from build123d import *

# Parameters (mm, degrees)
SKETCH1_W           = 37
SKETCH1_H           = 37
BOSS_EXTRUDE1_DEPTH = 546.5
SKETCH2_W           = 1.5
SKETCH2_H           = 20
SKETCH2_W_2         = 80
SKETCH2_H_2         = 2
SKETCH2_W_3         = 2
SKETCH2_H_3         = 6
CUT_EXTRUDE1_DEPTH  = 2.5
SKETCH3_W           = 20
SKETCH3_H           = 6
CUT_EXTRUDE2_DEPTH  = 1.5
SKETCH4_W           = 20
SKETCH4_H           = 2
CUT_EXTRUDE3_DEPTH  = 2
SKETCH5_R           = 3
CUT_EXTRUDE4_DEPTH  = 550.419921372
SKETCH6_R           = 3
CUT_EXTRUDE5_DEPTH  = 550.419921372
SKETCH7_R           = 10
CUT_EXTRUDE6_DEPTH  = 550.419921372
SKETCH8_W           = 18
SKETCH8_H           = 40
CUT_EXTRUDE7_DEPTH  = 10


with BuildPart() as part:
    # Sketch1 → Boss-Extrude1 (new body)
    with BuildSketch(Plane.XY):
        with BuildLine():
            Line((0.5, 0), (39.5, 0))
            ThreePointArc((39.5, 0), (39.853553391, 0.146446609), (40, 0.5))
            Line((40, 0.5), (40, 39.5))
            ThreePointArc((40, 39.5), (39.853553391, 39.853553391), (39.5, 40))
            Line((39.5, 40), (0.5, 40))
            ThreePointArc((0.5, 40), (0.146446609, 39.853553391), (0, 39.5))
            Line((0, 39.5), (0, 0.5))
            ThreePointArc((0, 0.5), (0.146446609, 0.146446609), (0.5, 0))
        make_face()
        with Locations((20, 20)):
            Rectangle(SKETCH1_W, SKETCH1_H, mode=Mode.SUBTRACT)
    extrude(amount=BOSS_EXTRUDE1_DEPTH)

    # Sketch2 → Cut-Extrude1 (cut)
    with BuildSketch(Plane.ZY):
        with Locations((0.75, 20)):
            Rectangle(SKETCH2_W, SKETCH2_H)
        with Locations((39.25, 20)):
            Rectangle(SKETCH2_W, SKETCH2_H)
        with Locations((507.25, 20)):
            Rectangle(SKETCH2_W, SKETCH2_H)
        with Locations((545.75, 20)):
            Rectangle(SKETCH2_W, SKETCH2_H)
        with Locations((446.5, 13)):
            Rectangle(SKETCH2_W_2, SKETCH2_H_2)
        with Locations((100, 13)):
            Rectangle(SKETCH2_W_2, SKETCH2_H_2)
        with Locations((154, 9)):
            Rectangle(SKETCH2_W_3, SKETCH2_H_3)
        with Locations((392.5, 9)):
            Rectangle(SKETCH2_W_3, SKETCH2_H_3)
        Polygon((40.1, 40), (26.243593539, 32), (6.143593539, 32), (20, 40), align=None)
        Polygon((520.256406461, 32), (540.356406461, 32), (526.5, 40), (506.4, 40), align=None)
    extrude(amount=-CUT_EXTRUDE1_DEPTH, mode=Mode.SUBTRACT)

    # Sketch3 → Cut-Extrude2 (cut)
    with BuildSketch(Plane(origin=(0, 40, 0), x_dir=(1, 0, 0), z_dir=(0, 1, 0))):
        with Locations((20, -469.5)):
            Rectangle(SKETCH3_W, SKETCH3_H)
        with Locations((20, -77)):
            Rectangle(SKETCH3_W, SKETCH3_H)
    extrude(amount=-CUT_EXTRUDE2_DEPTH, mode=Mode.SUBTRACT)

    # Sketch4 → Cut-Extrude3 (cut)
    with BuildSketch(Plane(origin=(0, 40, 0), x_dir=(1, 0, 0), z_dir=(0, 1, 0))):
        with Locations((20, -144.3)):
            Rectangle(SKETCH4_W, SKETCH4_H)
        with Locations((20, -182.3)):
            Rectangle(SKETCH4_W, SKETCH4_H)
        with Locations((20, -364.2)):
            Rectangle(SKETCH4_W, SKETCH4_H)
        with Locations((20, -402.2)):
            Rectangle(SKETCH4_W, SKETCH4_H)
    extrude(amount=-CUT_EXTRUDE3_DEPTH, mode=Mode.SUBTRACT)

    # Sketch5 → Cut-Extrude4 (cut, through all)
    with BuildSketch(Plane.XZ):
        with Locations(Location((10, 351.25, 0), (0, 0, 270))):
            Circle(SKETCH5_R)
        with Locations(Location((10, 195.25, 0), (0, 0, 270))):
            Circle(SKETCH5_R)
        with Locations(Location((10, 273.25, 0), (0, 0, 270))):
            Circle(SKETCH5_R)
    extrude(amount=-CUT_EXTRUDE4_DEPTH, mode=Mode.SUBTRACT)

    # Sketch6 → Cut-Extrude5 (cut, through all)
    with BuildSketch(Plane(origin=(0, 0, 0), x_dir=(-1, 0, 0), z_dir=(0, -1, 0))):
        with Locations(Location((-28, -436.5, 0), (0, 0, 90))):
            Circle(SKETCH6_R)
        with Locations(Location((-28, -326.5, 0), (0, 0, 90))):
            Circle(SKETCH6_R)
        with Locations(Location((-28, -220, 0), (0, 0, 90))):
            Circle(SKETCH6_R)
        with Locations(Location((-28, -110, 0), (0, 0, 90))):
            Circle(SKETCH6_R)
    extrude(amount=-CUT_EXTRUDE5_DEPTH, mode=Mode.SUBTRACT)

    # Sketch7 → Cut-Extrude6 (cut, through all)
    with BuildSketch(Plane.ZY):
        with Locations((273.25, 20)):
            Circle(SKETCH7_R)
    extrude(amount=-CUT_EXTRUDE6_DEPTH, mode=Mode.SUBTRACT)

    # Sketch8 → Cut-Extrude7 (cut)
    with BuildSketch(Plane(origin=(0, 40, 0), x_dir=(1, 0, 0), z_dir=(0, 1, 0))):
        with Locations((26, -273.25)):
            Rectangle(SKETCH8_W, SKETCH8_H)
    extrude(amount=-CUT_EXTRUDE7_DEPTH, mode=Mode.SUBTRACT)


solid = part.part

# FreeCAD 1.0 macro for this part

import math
import FreeCAD as App
import Part
import Sketcher

V = App.Vector
Q = App.Units.Quantity

doc = App.newDocument("Part")
body = doc.addObject("PartDesign::Body", "Body")

sketch1 = body.newObject("Sketcher::SketchObject", "Sketch")
sketch1.AttachmentSupport = (doc.getObject("XY_Plane"), [""])
sketch1.MapMode = "FlatFace"
sketch1.addGeometry([
    Part.LineSegment(V(0.5, 0, 0), V(39.5, 0, 0)),
    Part.ArcOfCircle(Part.Circle(V(39.5, 0.5, 0), V(0, 0, 1), 0.5), math.radians(-90), math.radians(0)),
    Part.LineSegment(V(40, 0.5, 0), V(40, 39.5, 0)),
    Part.ArcOfCircle(Part.Circle(V(39.5, 39.5, 0), V(0, 0, 1), 0.5), math.radians(0), math.radians(90)),
    Part.LineSegment(V(39.5, 40, 0), V(0.5, 40, 0)),
    Part.ArcOfCircle(Part.Circle(V(0.5, 39.5, 0), V(0, 0, 1), 0.5), math.radians(90), math.radians(180)),
    Part.LineSegment(V(0, 39.5, 0), V(0, 0.5, 0)),
    Part.ArcOfCircle(Part.Circle(V(0.5, 0.5, 0), V(0, 0, 1), 0.5), math.radians(180), math.radians(270)),
    Part.LineSegment(V(38.5, 1.5, 0), V(1.5, 1.5, 0)),
    Part.LineSegment(V(1.5, 1.5, 0), V(1.5, 38.5, 0)),
    Part.LineSegment(V(1.5, 38.5, 0), V(38.5, 38.5, 0)),
    Part.LineSegment(V(38.5, 38.5, 0), V(38.5, 1.5, 0)),
], False)
sketch1.addConstraint([
    Sketcher.Constraint("Tangent", 0, 2, 1, 1),
    Sketcher.Constraint("Tangent", 1, 2, 2, 1),
    Sketcher.Constraint("Tangent", 2, 2, 3, 1),
    Sketcher.Constraint("Tangent", 3, 2, 4, 1),
    Sketcher.Constraint("Tangent", 4, 2, 5, 1),
    Sketcher.Constraint("Tangent", 5, 2, 6, 1),
    Sketcher.Constraint("Tangent", 6, 2, 7, 1),
    Sketcher.Constraint("Tangent", 7, 2, 0, 1),
    Sketcher.Constraint("Coincident", 8, 2, 9, 1),
    Sketcher.Constraint("Coincident", 9, 2, 10, 1),
    Sketcher.Constraint("Coincident", 10, 2, 11, 1),
    Sketcher.Constraint("Coincident", 11, 2, 8, 1),
    Sketcher.Constraint("Horizontal", 0),
    Sketcher.Constraint("Vertical", 2),
    Sketcher.Constraint("Horizontal", 4),
    Sketcher.Constraint("Vertical", 6),
    Sketcher.Constraint("Horizontal", 8),
    Sketcher.Constraint("Vertical", 9),
    Sketcher.Constraint("Horizontal", 10),
    Sketcher.Constraint("Vertical", 11),
    Sketcher.Constraint("Equal", 1, 3),
    Sketcher.Constraint("Equal", 3, 5),
    Sketcher.Constraint("Equal", 5, 7),
    Sketcher.Constraint("PointOnObject", 0, 2, -1),
    Sketcher.Constraint("PointOnObject", 5, 2, -2),
    Sketcher.Constraint("Equal", 4, 2),
    Sketcher.Constraint("Equal", 10, 9),
    Sketcher.Constraint("Radius", 1, Q("0.5 mm")),
    Sketcher.Constraint("DistanceX", 0, 1, 0, 2, Q("39 mm")),
    Sketcher.Constraint("DistanceX", 8, 2, 8, 1, Q("37 mm")),
    Sketcher.Constraint("DistanceX", 7, 3, 8, 2, Q("1 mm")),
    Sketcher.Constraint("DistanceY", 7, 3, 8, 2, Q("1 mm")),
])
pad1 = body.newObject("PartDesign::Pad", "Pad")
pad1.Profile = sketch1
pad1.Length = 546.5

sketch2 = body.newObject("Sketcher::SketchObject", "Sketch001")
sketch2.AttachmentSupport = (doc.getObject("YZ_Plane"), [""])
sketch2.MapMode = "FlatFace"
sketch2.addGeometry([
    Part.LineSegment(V(30, 0, 0), V(10, 0, 0)),
    Part.LineSegment(V(10, 0, 0), V(10, 1.5, 0)),
    Part.LineSegment(V(10, 1.5, 0), V(30, 1.5, 0)),
    Part.LineSegment(V(30, 1.5, 0), V(30, 0, 0)),
    Part.LineSegment(V(30, 38.5, 0), V(10, 38.5, 0)),
    Part.LineSegment(V(10, 38.5, 0), V(10, 40, 0)),
    Part.LineSegment(V(10, 40, 0), V(30, 40, 0)),
    Part.LineSegment(V(30, 40, 0), V(30, 38.5, 0)),
    Part.LineSegment(V(30, 506.5, 0), V(10, 506.5, 0)),
    Part.LineSegment(V(10, 506.5, 0), V(10, 508, 0)),
    Part.LineSegment(V(10, 508, 0), V(30, 508, 0)),
    Part.LineSegment(V(30, 508, 0), V(30, 506.5, 0)),
    Part.LineSegment(V(30, 545, 0), V(10, 545, 0)),
    Part.LineSegment(V(10, 545, 0), V(10, 546.5, 0)),
    Part.LineSegment(V(10, 546.5, 0), V(30, 546.5, 0)),
    Part.LineSegment(V(30, 546.5, 0), V(30, 545, 0)),
    Part.LineSegment(V(14, 406.5, 0), V(12, 406.5, 0)),
    Part.LineSegment(V(12, 406.5, 0), V(12, 486.5, 0)),
    Part.LineSegment(V(12, 486.5, 0), V(14, 486.5, 0)),
    Part.LineSegment(V(14, 486.5, 0), V(14, 406.5, 0)),
    Part.LineSegment(V(14, 60, 0), V(12, 60, 0)),
    Part.LineSegment(V(12, 60, 0), V(12, 140, 0)),
    Part.LineSegment(V(12, 140, 0), V(14, 140, 0)),
    Part.LineSegment(V(14, 140, 0), V(14, 60, 0)),
    Part.LineSegment(V(12, 153, 0), V(6, 153, 0)),
    Part.LineSegment(V(6, 153, 0), V(6, 155, 0)),
    Part.LineSegment(V(6, 155, 0), V(12, 155, 0)),
    Part.LineSegment(V(12, 155, 0), V(12, 153, 0)),
    Part.LineSegment(V(12, 391.5, 0), V(6, 391.5, 0)),
    Part.LineSegment(V(6, 391.5, 0), V(6, 393.5, 0)),
    Part.LineSegment(V(6, 393.5, 0), V(12, 393.5, 0)),
    Part.LineSegment(V(12, 393.5, 0), V(12, 391.5, 0)),
    Part.LineSegment(V(32, 26.2, 0), V(40, 40.1, 0)),
    Part.LineSegment(V(40, 40.1, 0), V(40, 20, 0)),
    Part.LineSegment(V(40, 20, 0), V(32, 6.1, 0)),
    Part.LineSegment(V(32, 6.1, 0), V(32, 26.2, 0)),
    Part.LineSegment(V(32, 520.3, 0), V(32, 540.4, 0)),
    Part.LineSegment(V(32, 540.4, 0), V(40, 526.5, 0)),
    Part.LineSegment(V(40, 526.5, 0), V(40, 506.4, 0)),
    Part.LineSegment(V(40, 506.4, 0), V(32, 520.3, 0)),
], False)
sketch2.addConstraint([
    Sketcher.Constraint("Coincident", 0, 2, 1, 1),
    Sketcher.Constraint("Coincident", 1, 2, 2, 1),
    Sketcher.Constraint("Coincident", 2, 2, 3, 1),
    Sketcher.Constraint("Coincident", 3, 2, 0, 1),
    Sketcher.Constraint("Coincident", 4, 2, 5, 1),
    Sketcher.Constraint("Coincident", 5, 2, 6, 1),
    Sketcher.Constraint("Coincident", 6, 2, 7, 1),
    Sketcher.Constraint("Coincident", 7, 2, 4, 1),
    Sketcher.Constraint("Coincident", 8, 2, 9, 1),
    Sketcher.Constraint("Coincident", 9, 2, 10, 1),
    Sketcher.Constraint("Coincident", 10, 2, 11, 1),
    Sketcher.Constraint("Coincident", 11, 2, 8, 1),
    Sketcher.Constraint("Coincident", 12, 2, 13, 1),
    Sketcher.Constraint("Coincident", 13, 2, 14, 1),
    Sketcher.Constraint("Coincident", 14, 2, 15, 1),
    Sketcher.Constraint("Coincident", 15, 2, 12, 1),
    Sketcher.Constraint("Coincident", 16, 2, 17, 1),
    Sketcher.Constraint("Coincident", 17, 2, 18, 1),
    Sketcher.Constraint("Coincident", 18, 2, 19, 1),
    Sketcher.Constraint("Coincident", 19, 2, 16, 1),
    Sketcher.Constraint("Coincident", 20, 2, 21, 1),
    Sketcher.Constraint("Coincident", 21, 2, 22, 1),
    Sketcher.Constraint("Coincident", 22, 2, 23, 1),
    Sketcher.Constraint("Coincident", 23, 2, 20, 1),
    Sketcher.Constraint("Coincident", 24, 2, 25, 1),
    Sketcher.Constraint("Coincident", 25, 2, 26, 1),
    Sketcher.Constraint("Coincident", 26, 2, 27, 1),
    Sketcher.Constraint("Coincident", 27, 2, 24, 1),
    Sketcher.Constraint("Coincident", 28, 2, 29, 1),
    Sketcher.Constraint("Coincident", 29, 2, 30, 1),
    Sketcher.Constraint("Coincident", 30, 2, 31, 1),
    Sketcher.Constraint("Coincident", 31, 2, 28, 1),
    Sketcher.Constraint("Coincident", 32, 2, 33, 1),
    Sketcher.Constraint("Coincident", 33, 2, 34, 1),
    Sketcher.Constraint("Coincident", 34, 2, 35, 1),
    Sketcher.Constraint("Coincident", 35, 2, 32, 1),
    Sketcher.Constraint("Coincident", 36, 2, 37, 1),
    Sketcher.Constraint("Coincident", 37, 2, 38, 1),
    Sketcher.Constraint("Coincident", 38, 2, 39, 1),
    Sketcher.Constraint("Coincident", 39, 2, 36, 1),
    Sketcher.Constraint("Horizontal", 0),
    Sketcher.Constraint("Vertical", 1),
    Sketcher.Constraint("Horizontal", 2),
    Sketcher.Constraint("Vertical", 3),
    Sketcher.Constraint("Horizontal", 4),
    Sketcher.Constraint("Vertical", 5),
    Sketcher.Constraint("Horizontal", 6),
    Sketcher.Constraint("Vertical", 7),
    Sketcher.Constraint("Horizontal", 8),
    Sketcher.Constraint("Vertical", 9),
    Sketcher.Constraint("Horizontal", 10),
    Sketcher.Constraint("Vertical", 11),
    Sketcher.Constraint("Horizontal", 12),
    Sketcher.Constraint("Vertical", 13),
    Sketcher.Constraint("Horizontal", 14),
    Sketcher.Constraint("Vertical", 15),
    Sketcher.Constraint("Horizontal", 16),
    Sketcher.Constraint("Vertical", 17),
    Sketcher.Constraint("Horizontal", 18),
    Sketcher.Constraint("Vertical", 19),
    Sketcher.Constraint("Horizontal", 20),
    Sketcher.Constraint("Vertical", 21),
    Sketcher.Constraint("Horizontal", 22),
    Sketcher.Constraint("Vertical", 23),
    Sketcher.Constraint("Horizontal", 24),
    Sketcher.Constraint("Vertical", 25),
    Sketcher.Constraint("Horizontal", 26),
    Sketcher.Constraint("Vertical", 27),
    Sketcher.Constraint("Horizontal", 28),
    Sketcher.Constraint("Vertical", 29),
    Sketcher.Constraint("Horizontal", 30),
    Sketcher.Constraint("Vertical", 31),
    Sketcher.Constraint("Vertical", 33),
    Sketcher.Constraint("Vertical", 35),
    Sketcher.Constraint("Vertical", 36),
    Sketcher.Constraint("Vertical", 38),
    Sketcher.Constraint("PointOnObject", 0, 2, -1),
    Sketcher.Constraint("Parallel", 32, 34),
    Sketcher.Constraint("Parallel", 37, 39),
    Sketcher.Constraint("Vertical", 1, 2, 4, 2),
    Sketcher.Constraint("Vertical", 3, 2, 6, 2),
    Sketcher.Constraint("Vertical", 5, 2, 8, 2),
    Sketcher.Constraint("Vertical", 7, 2, 10, 2),
    Sketcher.Constraint("Vertical", 9, 2, 12, 2),
    Sketcher.Constraint("Vertical", 11, 2, 14, 2),
    Sketcher.Constraint("Vertical", 17, 2, 20, 2),
    Sketcher.Constraint("Vertical", 19, 2, 22, 2),
    Sketcher.Constraint("Vertical", 21, 2, 26, 2),
    Sketcher.Constraint("Vertical", 25, 2, 28, 2),
    Sketcher.Constraint("Vertical", 27, 2, 30, 2),
    Sketcher.Constraint("Vertical", 35, 2, 36, 2),
    Sketcher.Constraint("Vertical", 33, 2, 37, 2),
    Sketcher.Constraint("Equal", 3, 5),
    Sketcher.Constraint("Equal", 7, 9),
    Sketcher.Constraint("Equal", 11, 13),
    Sketcher.Constraint("Equal", 19, 21),
    Sketcher.Constraint("Equal", 22, 25),
    Sketcher.Constraint("Equal", 27, 29),
    Sketcher.Constraint("Equal", 35, 36),
    Sketcher.Constraint("Equal", 34, 37),
    Sketcher.Constraint("DistanceX", 0, 2, 0, 1, Q("20 mm")),
    Sketcher.Constraint("DistanceX", 16, 2, 16, 1, Q("2 mm")),
    Sketcher.Constraint("DistanceX", 24, 2, 24, 1, Q("6 mm")),
    Sketcher.Constraint("DistanceY", 17, 1, 17, 2, Q("80 mm")),
    Sketcher.Constraint("Angle", 32, Q("60 deg")),
    Sketcher.Constraint("Distance", 32, Q("16 mm")),
    Sketcher.Constraint("DistanceY", 1, 1, 1, 2, Q("1.5 mm")),
    Sketcher.Constraint("DistanceY", 33, 2, 33, 1, Q("20.1 mm")),
    Sketcher.Constraint("DistanceX", -1, 1, 0, 2, Q("10 mm")),
    Sketcher.Constraint("DistanceY", -1, 1, 5, 2, Q("40 mm")),
    Sketcher.Constraint("DistanceY", -1, 1, 9, 2, Q("508 mm")),
    Sketcher.Constraint("DistanceY", -1, 1, 12, 2, Q("545 mm")),
    Sketcher.Constraint("DistanceX", -1, 1, 16, 2, Q("12 mm")),
    Sketcher.Constraint("DistanceY", -1, 1, 20, 2, Q("60 mm")),
    Sketcher.Constraint("DistanceY", -1, 1, 24, 2, Q("153 mm")),
    Sketcher.Constraint("DistanceX", -1, 1, 32, 2, Q("40 mm")),
    Sketcher.Constraint("DistanceY", -1, 1, 33, 2, Q("20 mm")),
    Sketcher.Constraint("DistanceY", 16, 2, 8, 2, Q("100 mm")),
    Sketcher.Constraint("DistanceY", 28, 2, 16, 2, Q("15 mm")),
    Sketcher.Constraint("DistanceY", 11, 2, 37, 2, Q("20 mm")),
])
pocket1 = body.newObject("PartDesign::Pocket", "Pocket")
pocket1.Profile = sketch2
pocket1.Length = 2.5
pocket1.Reversed = True

sketch3 = body.newObject("Sketcher::SketchObject", "Sketch002")
sketch3.AttachmentSupport = (doc.getObject("XZ_Plane"), [""])
sketch3.MapMode = "FlatFace"
sketch3.AttachmentOffset = App.Placement(V(0, 0, -40), App.Rotation())
sketch3.addGeometry([
    Part.LineSegment(V(10, 466, 0), V(10, 472, 0)),
    Part.LineSegment(V(10, 472, 0), V(30, 472, 0)),
    Part.LineSegment(V(30, 472, 0), V(30, 466, 0)),
    Part.LineSegment(V(30, 466, 0), V(10, 466, 0)),
    Part.LineSegment(V(10, 74, 0), V(10, 80, 0)),
    Part.LineSegment(V(10, 80, 0), V(30, 80, 0)),
    Part.LineSegment(V(30, 80, 0), V(30, 74, 0)),
    Part.LineSegment(V(30, 74, 0), V(10, 74, 0)),
], False)
sketch3.addConstraint([
    Sketcher.Constraint("Coincident", 0, 2, 1, 1),
    Sketcher.Constraint("Coincident", 1, 2, 2, 1),
    Sketcher.Constraint("Coincident", 2, 2, 3, 1),
    Sketcher.Constraint("Coincident", 3, 2, 0, 1),
    Sketcher.Constraint("Coincident", 4, 2, 5, 1),
    Sketcher.Constraint("Coincident", 5, 2, 6, 1),
    Sketcher.Constraint("Coincident", 6, 2, 7, 1),
    Sketcher.Constraint("Coincident", 7, 2, 4, 1),
    Sketcher.Constraint("Vertical", 0),
    Sketcher.Constraint("Horizontal", 1),
    Sketcher.Constraint("Vertical", 2),
    Sketcher.Constraint("Horizontal", 3),
    Sketcher.Constraint("Vertical", 4),
    Sketcher.Constraint("Horizontal", 5),
    Sketcher.Constraint("Vertical", 6),
    Sketcher.Constraint("Horizontal", 7),
    Sketcher.Constraint("Vertical", 3, 2, 4, 2),
    Sketcher.Constraint("Vertical", 2, 2, 5, 2),
    Sketcher.Constraint("Equal", 2, 4),
    Sketcher.Constraint("DistanceX", 1, 1, 1, 2, Q("20 mm")),
    Sketcher.Constraint("DistanceY", 0, 1, 0, 2, Q("6 mm")),
    Sketcher.Constraint("DistanceX", -1, 1, 0, 2, Q("10 mm")),
    Sketcher.Constraint("DistanceY", -1, 1, 4, 2, Q("80 mm")),
    Sketcher.Constraint("DistanceY", -1, 1, 0, 2, Q("472.5 mm")),
])
pocket2 = body.newObject("PartDesign::Pocket", "Pocket001")
pocket2.Profile = sketch3
pocket2.Length = 1.5
pocket2.Reversed = True

sketch4 = body.newObject("Sketcher::SketchObject", "Sketch003")
sketch4.AttachmentSupport = (doc.getObject("XZ_Plane"), [""])
sketch4.MapMode = "FlatFace"
sketch4.AttachmentOffset = App.Placement(V(0, 0, -40), App.Rotation())
sketch4.addGeometry([
    Part.LineSegment(V(10, 143.3, 0), V(10, 145.3, 0)),
    Part.LineSegment(V(10, 145.3, 0), V(30, 145.3, 0)),
    Part.LineSegment(V(30, 145.3, 0), V(30, 143.3, 0)),
    Part.LineSegment(V(30, 143.3, 0), V(10, 143.3, 0)),
    Part.LineSegment(V(10, 181.3, 0), V(10, 183.3, 0)),
    Part.LineSegment(V(10, 183.3, 0), V(30, 183.3, 0)),
    Part.LineSegment(V(30, 183.3, 0), V(30, 181.3, 0)),
    Part.LineSegment(V(30, 181.3, 0), V(10, 181.3, 0)),
    Part.LineSegment(V(10, 363.2, 0), V(10, 365.2, 0)),
    Part.LineSegment(V(10, 365.2, 0), V(30, 365.2, 0)),
    Part.LineSegment(V(30, 365.2, 0), V(30, 363.2, 0)),
    Part.LineSegment(V(30, 363.2, 0), V(10, 363.2, 0)),
    Part.LineSegment(V(10, 401.2, 0), V(10, 403.2, 0)),
    Part.LineSegment(V(10, 403.2, 0), V(30, 403.2, 0)),
    Part.LineSegment(V(30, 403.2, 0), V(30, 401.2, 0)),
    Part.LineSegment(V(30, 401.2, 0), V(10, 401.2, 0)),
], False)
sketch4.addConstraint([
    Sketcher.Constraint("Coincident", 0, 2, 1, 1),
    Sketcher.Constraint("Coincident", 1, 2, 2, 1),
    Sketcher.Constraint("Coincident", 2, 2, 3, 1),
    Sketcher.Constraint("Coincident", 3, 2, 0, 1),
    Sketcher.Constraint("Coincident", 4, 2, 5, 1),
    Sketcher.Constraint("Coincident", 5, 2, 6, 1),
    Sketcher.Constraint("Coincident", 6, 2, 7, 1),
    Sketcher.Constraint("Coincident", 7, 2, 4, 1),
    Sketcher.Constraint("Coincident", 8, 2, 9, 1),
    Sketcher.Constraint("Coincident", 9, 2, 10, 1),
    Sketcher.Constraint("Coincident", 10, 2, 11, 1),
    Sketcher.Constraint("Coincident", 11, 2, 8, 1),
    Sketcher.Constraint("Coincident", 12, 2, 13, 1),
    Sketcher.Constraint("Coincident", 13, 2, 14, 1),
    Sketcher.Constraint("Coincident", 14, 2, 15, 1),
    Sketcher.Constraint("Coincident", 15, 2, 12, 1),
    Sketcher.Constraint("Vertical", 0),
    Sketcher.Constraint("Horizontal", 1),
    Sketcher.Constraint("Vertical", 2),
    Sketcher.Constraint("Horizontal", 3),
    Sketcher.Constraint("Vertical", 4),
    Sketcher.Constraint("Horizontal", 5),
    Sketcher.Constraint("Vertical", 6),
    Sketcher.Constraint("Horizontal", 7),
    Sketcher.Constraint("Vertical", 8),
    Sketcher.Constraint("Horizontal", 9),
    Sketcher.Constraint("Vertical", 10),
    Sketcher.Constraint("Horizontal", 11),
    Sketcher.Constraint("Vertical", 12),
    Sketcher.Constraint("Horizontal", 13),
    Sketcher.Constraint("Vertical", 14),
    Sketcher.Constraint("Horizontal", 15),
    Sketcher.Constraint("Vertical", 3, 2, 4, 2),
    Sketcher.Constraint("Vertical", 2, 2, 5, 2),
    Sketcher.Constraint("Vertical", 7, 2, 8, 2),
    Sketcher.Constraint("Vertical", 6, 2, 9, 2),
    Sketcher.Constraint("Vertical", 11, 2, 12, 2),
    Sketcher.Constraint("Vertical", 10, 2, 13, 2),
    Sketcher.Constraint("Equal", 2, 4),
    Sketcher.Constraint("Equal", 6, 8),
    Sketcher.Constraint("Equal", 10, 12),
    Sketcher.Constraint("DistanceX", 1, 1, 1, 2, Q("20 mm")),
    Sketcher.Constraint("DistanceY", 0, 1, 0, 2, Q("2 mm")),
    Sketcher.Constraint("DistanceX", -1, 1, 0, 2, Q("10 mm")),
    Sketcher.Constraint("DistanceY", 0, 2, 4, 2, Q("38 mm")),
    Sketcher.Constraint("DistanceY", 8, 2, 12, 2, Q("38 mm")),
    Sketcher.Constraint("DistanceY", -1, 1, 0, 2, Q("145.3 mm")),
    Sketcher.Constraint("DistanceY", -1, 1, 8, 2, Q("365.2 mm")),
])
pocket3 = body.newObject("PartDesign::Pocket", "Pocket002")
pocket3.Profile = sketch4
pocket3.Length = 2
pocket3.Reversed = True

sketch5 = body.newObject("Sketcher::SketchObject", "Sketch004")
sketch5.AttachmentSupport = (doc.getObject("XZ_Plane"), [""])
sketch5.MapMode = "FlatFace"
sketch5.addGeometry([
    Part.Circle(V(10, 351.2, 0), V(0, 0, 1), 3),
    Part.Circle(V(10, 195.2, 0), V(0, 0, 1), 3),
    Part.Circle(V(10, 273.2, 0), V(0, 0, 1), 3),
], False)
sketch5.addConstraint([
    Sketcher.Constraint("Equal", 0, 1),
    Sketcher.Constraint("Equal", 1, 2),
    Sketcher.Constraint("Vertical", 0, 3, 1, 3),
    Sketcher.Constraint("Vertical", 1, 3, 2, 3),
    Sketcher.Constraint("Diameter", 0, Q("6 mm")),
    Sketcher.Constraint("DistanceX", -1, 1, 0, 3, Q("10 mm")),
    Sketcher.Constraint("DistanceY", 1, 3, 0, 3, Q("156 mm")),
    Sketcher.Constraint("DistanceY", 2, 3, 0, 3, Q("78 mm")),
    Sketcher.Constraint("DistanceY", -1, 1, 0, 3, Q("351.25 mm")),
])
pocket4 = body.newObject("PartDesign::Pocket", "Pocket003")
pocket4.Profile = sketch5
pocket4.Type = "ThroughAll"

sketch6 = body.newObject("Sketcher::SketchObject", "Sketch005")
sketch6.AttachmentSupport = (doc.getObject("XZ_Plane"), [""])
sketch6.MapMode = "FlatFace"
sketch6.addGeometry([
    Part.Circle(V(28, 436.5, 0), V(0, 0, 1), 3),
    Part.Circle(V(28, 326.5, 0), V(0, 0, 1), 3),
    Part.Circle(V(28, 220, 0), V(0, 0, 1), 3),
    Part.Circle(V(28, 110, 0), V(0, 0, 1), 3),
], False)
sketch6.addConstraint([
    Sketcher.Constraint("Equal", 0, 1),
    Sketcher.Constraint("Equal", 1, 2),
    Sketcher.Constraint("Equal", 2, 3),
    Sketcher.Constraint("Vertical", 0, 3, 1, 3),
    Sketcher.Constraint("Vertical", 1, 3, 2, 3),
    Sketcher.Constraint("Vertical", 2, 3, 3, 3),
    Sketcher.Constraint("Diameter", 0, Q("6 mm")),
    Sketcher.Constraint("DistanceX", -1, 1, 0, 3, Q("28 mm")),
    Sketcher.Constraint("DistanceY", -1, 1, 2, 3, Q("220 mm")),
    Sketcher.Constraint("DistanceY", -1, 1, 3, 3, Q("110 mm")),
    Sketcher.Constraint("DistanceY", 1, 3, 0, 3, Q("110 mm")),
    Sketcher.Constraint("DistanceY", -1, 1, 0, 3, Q("436.5 mm")),
])
pocket5 = body.newObject("PartDesign::Pocket", "Pocket004")
pocket5.Profile = sketch6
pocket5.Type = "ThroughAll"

sketch7 = body.newObject("Sketcher::SketchObject", "Sketch006")
sketch7.AttachmentSupport = (doc.getObject("YZ_Plane"), [""])
sketch7.MapMode = "FlatFace"
sketch7.addGeometry(Part.Circle(V(20, 273, 0), V(0, 0, 1), 10), False)
sketch7.addConstraint([
    Sketcher.Constraint("Diameter", 0, Q("20 mm")),
    Sketcher.Constraint("DistanceX", -1, 1, 0, 3, Q("20 mm")),
    Sketcher.Constraint("DistanceY", -1, 1, 0, 3, Q("273.25 mm")),
])
pocket6 = body.newObject("PartDesign::Pocket", "Pocket005")
pocket6.Profile = sketch7
pocket6.Type = "ThroughAll"
pocket6.Reversed = True

sketch8 = body.newObject("Sketcher::SketchObject", "Sketch007")
sketch8.AttachmentSupport = (doc.getObject("XZ_Plane"), [""])
sketch8.MapMode = "FlatFace"
sketch8.AttachmentOffset = App.Placement(V(0, 0, -40), App.Rotation())
sketch8.addGeometry([
    Part.LineSegment(V(17, 253, 0), V(17, 293, 0)),
    Part.LineSegment(V(17, 293, 0), V(35, 293, 0)),
    Part.LineSegment(V(35, 293, 0), V(35, 253, 0)),
    Part.LineSegment(V(35, 253, 0), V(17, 253, 0)),
], False)
sketch8.addConstraint([
    Sketcher.Constraint("Coincident", 0, 2, 1, 1),
    Sketcher.Constraint("Coincident", 1, 2, 2, 1),
    Sketcher.Constraint("Coincident", 2, 2, 3, 1),
    Sketcher.Constraint("Coincident", 3, 2, 0, 1),
    Sketcher.Constraint("Vertical", 0),
    Sketcher.Constraint("Horizontal", 1),
    Sketcher.Constraint("Vertical", 2),
    Sketcher.Constraint("Horizontal", 3),
    Sketcher.Constraint("DistanceX", 1, 1, 1, 2, Q("18 mm")),
    Sketcher.Constraint("DistanceY", 0, 1, 0, 2, Q("40 mm")),
    Sketcher.Constraint("DistanceX", -1, 1, 0, 2, Q("17 mm")),
    Sketcher.Constraint("DistanceY", -1, 1, 0, 2, Q("293.25 mm")),
])
pocket7 = body.newObject("PartDesign::Pocket", "Pocket006")
pocket7.Profile = sketch8
pocket7.Length = 10
pocket7.Reversed = True

doc.recompute()
